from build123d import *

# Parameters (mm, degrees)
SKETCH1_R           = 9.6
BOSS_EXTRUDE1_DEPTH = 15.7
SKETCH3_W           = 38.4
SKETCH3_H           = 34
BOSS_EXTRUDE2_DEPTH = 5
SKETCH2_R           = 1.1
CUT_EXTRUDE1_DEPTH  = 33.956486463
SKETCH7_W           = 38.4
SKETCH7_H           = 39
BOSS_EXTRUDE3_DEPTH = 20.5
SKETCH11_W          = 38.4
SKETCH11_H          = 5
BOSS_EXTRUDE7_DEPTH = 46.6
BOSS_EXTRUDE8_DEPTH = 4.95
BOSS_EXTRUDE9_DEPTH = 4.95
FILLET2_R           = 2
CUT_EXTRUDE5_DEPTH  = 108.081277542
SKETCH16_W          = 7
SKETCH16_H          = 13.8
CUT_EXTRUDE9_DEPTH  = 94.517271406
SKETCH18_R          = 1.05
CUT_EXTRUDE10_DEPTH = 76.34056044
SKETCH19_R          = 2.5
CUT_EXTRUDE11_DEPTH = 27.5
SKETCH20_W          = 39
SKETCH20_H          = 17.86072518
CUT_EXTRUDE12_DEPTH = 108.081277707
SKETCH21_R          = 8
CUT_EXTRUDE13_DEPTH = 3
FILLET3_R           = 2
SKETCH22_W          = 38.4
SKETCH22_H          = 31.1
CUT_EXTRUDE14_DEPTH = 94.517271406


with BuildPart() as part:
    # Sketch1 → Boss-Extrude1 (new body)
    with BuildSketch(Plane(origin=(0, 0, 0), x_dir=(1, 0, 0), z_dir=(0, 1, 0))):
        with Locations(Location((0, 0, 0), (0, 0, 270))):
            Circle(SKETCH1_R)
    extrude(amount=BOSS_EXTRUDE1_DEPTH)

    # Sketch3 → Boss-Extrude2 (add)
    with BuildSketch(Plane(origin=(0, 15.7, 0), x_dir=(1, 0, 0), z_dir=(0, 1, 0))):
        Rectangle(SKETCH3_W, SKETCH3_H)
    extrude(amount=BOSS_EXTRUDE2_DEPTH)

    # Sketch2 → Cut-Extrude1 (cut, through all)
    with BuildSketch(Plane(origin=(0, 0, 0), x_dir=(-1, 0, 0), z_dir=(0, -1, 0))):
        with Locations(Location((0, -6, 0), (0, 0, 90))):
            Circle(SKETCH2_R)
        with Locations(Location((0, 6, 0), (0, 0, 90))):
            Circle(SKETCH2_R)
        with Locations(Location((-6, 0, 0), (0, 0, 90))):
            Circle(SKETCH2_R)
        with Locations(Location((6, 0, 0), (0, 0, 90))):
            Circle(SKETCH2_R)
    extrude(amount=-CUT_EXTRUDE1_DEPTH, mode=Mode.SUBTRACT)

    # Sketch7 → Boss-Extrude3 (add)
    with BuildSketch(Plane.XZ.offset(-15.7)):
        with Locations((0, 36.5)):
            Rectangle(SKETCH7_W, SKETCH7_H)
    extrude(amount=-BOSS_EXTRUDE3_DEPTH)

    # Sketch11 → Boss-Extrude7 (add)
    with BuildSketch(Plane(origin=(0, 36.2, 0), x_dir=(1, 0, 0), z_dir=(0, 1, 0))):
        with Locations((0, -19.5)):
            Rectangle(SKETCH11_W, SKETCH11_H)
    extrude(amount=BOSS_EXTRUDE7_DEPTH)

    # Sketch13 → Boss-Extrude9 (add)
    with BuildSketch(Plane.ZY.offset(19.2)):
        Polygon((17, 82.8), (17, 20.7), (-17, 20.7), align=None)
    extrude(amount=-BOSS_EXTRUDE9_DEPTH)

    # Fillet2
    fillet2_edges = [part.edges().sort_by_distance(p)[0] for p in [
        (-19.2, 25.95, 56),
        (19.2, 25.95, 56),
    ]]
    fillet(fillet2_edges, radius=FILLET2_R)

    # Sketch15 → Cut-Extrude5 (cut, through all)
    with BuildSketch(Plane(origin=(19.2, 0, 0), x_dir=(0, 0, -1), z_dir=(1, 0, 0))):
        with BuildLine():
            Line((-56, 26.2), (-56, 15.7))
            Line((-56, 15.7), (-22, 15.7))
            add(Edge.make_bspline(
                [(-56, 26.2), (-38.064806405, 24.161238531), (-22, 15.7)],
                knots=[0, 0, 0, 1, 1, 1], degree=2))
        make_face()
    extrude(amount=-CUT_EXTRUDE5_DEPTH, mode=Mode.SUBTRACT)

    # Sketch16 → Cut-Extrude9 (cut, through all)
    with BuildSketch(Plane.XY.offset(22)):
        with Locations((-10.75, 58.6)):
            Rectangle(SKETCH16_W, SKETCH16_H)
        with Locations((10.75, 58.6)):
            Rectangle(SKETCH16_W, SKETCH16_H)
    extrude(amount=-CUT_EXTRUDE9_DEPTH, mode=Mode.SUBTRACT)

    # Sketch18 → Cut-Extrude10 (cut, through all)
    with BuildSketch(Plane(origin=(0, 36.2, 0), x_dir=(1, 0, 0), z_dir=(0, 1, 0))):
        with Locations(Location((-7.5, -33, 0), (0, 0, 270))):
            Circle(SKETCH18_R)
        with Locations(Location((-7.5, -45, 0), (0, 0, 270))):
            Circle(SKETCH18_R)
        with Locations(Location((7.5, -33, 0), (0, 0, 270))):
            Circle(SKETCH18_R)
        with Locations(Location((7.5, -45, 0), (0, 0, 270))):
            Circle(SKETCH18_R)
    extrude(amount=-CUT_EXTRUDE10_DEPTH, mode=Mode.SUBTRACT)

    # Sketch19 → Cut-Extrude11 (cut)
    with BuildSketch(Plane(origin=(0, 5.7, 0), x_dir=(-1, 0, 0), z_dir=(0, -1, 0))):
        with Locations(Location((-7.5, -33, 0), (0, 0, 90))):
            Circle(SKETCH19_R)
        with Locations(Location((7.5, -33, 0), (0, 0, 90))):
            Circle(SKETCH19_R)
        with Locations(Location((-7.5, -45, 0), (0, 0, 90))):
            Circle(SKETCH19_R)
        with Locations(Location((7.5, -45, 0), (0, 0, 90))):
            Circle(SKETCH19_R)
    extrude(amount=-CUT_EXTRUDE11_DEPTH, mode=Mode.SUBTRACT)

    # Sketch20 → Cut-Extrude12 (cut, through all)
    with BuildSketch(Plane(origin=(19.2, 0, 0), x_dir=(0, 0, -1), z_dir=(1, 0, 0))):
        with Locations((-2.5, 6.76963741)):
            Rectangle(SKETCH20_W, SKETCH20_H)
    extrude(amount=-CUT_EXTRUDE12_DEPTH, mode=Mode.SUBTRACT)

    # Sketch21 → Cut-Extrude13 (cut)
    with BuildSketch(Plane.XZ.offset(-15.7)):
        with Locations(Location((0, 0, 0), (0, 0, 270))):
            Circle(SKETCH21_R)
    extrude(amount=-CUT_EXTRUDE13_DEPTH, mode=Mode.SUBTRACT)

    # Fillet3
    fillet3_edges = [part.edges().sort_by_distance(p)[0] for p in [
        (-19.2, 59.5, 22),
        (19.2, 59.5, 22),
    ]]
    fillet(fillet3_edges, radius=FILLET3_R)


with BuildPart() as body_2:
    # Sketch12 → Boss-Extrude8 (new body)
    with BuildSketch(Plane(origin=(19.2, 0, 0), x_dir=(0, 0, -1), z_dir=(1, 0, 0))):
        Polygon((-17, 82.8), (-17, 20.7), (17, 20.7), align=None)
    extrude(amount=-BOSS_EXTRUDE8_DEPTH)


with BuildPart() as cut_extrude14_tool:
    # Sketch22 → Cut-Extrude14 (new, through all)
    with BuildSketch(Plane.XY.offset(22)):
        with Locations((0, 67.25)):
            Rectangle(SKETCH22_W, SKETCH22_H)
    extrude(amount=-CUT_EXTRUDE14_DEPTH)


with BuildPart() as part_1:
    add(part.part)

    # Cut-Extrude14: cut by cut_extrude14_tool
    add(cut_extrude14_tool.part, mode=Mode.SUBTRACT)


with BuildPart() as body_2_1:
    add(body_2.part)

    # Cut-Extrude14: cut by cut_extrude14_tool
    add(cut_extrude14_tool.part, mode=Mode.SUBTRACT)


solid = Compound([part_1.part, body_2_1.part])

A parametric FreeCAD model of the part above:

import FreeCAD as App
import Part
import Sketcher
from FreeCAD import Vector
Q = App.Units.Quantity


def edges_at(feature, points):
    """Names of the edges that pass closest to the given points."""
    edges = feature.Shape.Edges
    near = lambda p: min(range(len(edges)), key=lambda i: edges[i].distToShape(Part.Vertex(*p))[0])
    return sorted({f"Edge{near(p) + 1}" for p in points})


def add_polygon(sketch, points):
    """Adds a closed chain of lines whose ends are joined by coincident constraints."""
    first, n = sketch.GeometryCount, len(points)
    for a, b in zip(points, points[1:] + points[:1]):
        sketch.addGeometry(Part.LineSegment(App.Vector(*a, 0), App.Vector(*b, 0)), False)
    for i in range(n):
        sketch.addConstraint(Sketcher.Constraint("Coincident", first + i, 2, first + (i + 1) % n, 1))

doc = App.newDocument("Part")
body = doc.addObject("PartDesign::Body", "Body")

sketch1 = body.newObject("Sketcher::SketchObject", "Sketch")
sketch1.AttachmentSupport = (doc.getObject("XZ_Plane"), [""])
sketch1.MapMode = "FlatFace"
sketch1.addGeometry(Part.Circle(Vector(0, 0, 0), Vector(0, 0, 1), 9.6), False)
sketch1.addConstraint([
    Sketcher.Constraint("Coincident", 0, 3, -1, 1),
    Sketcher.Constraint("Diameter", 0, Q("19.2 mm")),
])
pad1 = body.newObject("PartDesign::Pad", "Pad")
pad1.Profile = sketch1
pad1.Length = 15.7
pad1.Reversed = True

sketch2 = body.newObject("Sketcher::SketchObject", "Sketch001")
sketch2.AttachmentSupport = (doc.getObject("XZ_Plane"), [""])
sketch2.MapMode = "FlatFace"
sketch2.AttachmentOffset = App.Placement(Vector(0, 0, -15.7), App.Rotation())
add_polygon(sketch2, [(-19.2, -17), (-19.2, 17), (19.2, 17), (19.2, -17)])
sketch2.addConstraint([
    Sketcher.Constraint("Vertical", 0),
    Sketcher.Constraint("Horizontal", 1),
    Sketcher.Constraint("Vertical", 2),
    Sketcher.Constraint("Horizontal", 3),
    Sketcher.Constraint("Symmetric", 0, 2, 2, 2, -1, 1),
    Sketcher.Constraint("DistanceY", 0, 1, 0, 2, Q("34 mm")),
    Sketcher.Constraint("DistanceX", 1, 1, 1, 2, Q("38.4 mm")),
])
pad2 = body.newObject("PartDesign::Pad", "Pad001")
pad2.Profile = sketch2
pad2.Length = 5
pad2.Reversed = True

sketch3 = body.newObject("Sketcher::SketchObject", "Sketch002")
sketch3.AttachmentSupport = (doc.getObject("XZ_Plane"), [""])
sketch3.MapMode = "FlatFace"
sketch3.addGeometry([
    Part.Circle(Vector(0, 6, 0), Vector(0, 0, 1), 1.1),
    Part.Circle(Vector(0, -6, 0), Vector(0, 0, 1), 1.1),
    Part.Circle(Vector(6, 0, 0), Vector(0, 0, 1), 1.1),
    Part.Circle(Vector(-6, 0, 0), Vector(0, 0, 1), 1.1),
], False)
sketch3.addConstraint([
    Sketcher.Constraint("Equal", 0, 1),
    Sketcher.Constraint("Equal", 1, 2),
    Sketcher.Constraint("Equal", 2, 3),
    Sketcher.Constraint("Symmetric", 0, 3, 1, 3, -1, 1),
    Sketcher.Constraint("Symmetric", 2, 3, 3, 3, -1, 1),
    Sketcher.Constraint("PointOnObject", 0, 3, -2),
    Sketcher.Constraint("PointOnObject", 2, 3, -1),
    Sketcher.Constraint("Diameter", 0, Q("2.2 mm")),
    Sketcher.Constraint("DistanceY", -1, 1, 0, 3, Q("6 mm")),
    Sketcher.Constraint("DistanceX", -1, 1, 2, 3, Q("6 mm")),
])
pocket1 = body.newObject("PartDesign::Pocket", "Pocket")
pocket1.Profile = sketch3
pocket1.Type = "ThroughAll"

sketch4 = body.newObject("Sketcher::SketchObject", "Sketch003")
sketch4.AttachmentSupport = (doc.getObject("XZ_Plane"), [""])
sketch4.MapMode = "FlatFace"
sketch4.AttachmentOffset = App.Placement(Vector(0, 0, -15.7), App.Rotation())
add_polygon(sketch4, [(-19.2, 56), (-19.2, 17), (19.2, 17), (19.2, 56)])
sketch4.addConstraint([
    Sketcher.Constraint("Vertical", 0),
    Sketcher.Constraint("Horizontal", 1),
    Sketcher.Constraint("Vertical", 2),
    Sketcher.Constraint("Horizontal", 3),
    Sketcher.Constraint("DistanceY", 0, 2, 0, 1, Q("39 mm")),
    Sketcher.Constraint("DistanceX", 1, 1, 1, 2, Q("38.4 mm")),
    Sketcher.Constraint("DistanceY", -1, 1, 0, 2, Q("17 mm")),
    Sketcher.Constraint("DistanceX", 0, 2, -1, 1, Q("19.2 mm")),
])
pad3 = body.newObject("PartDesign::Pad", "Pad002")
pad3.Profile = sketch4
pad3.Length = 20.5
pad3.Reversed = True

sketch5 = body.newObject("Sketcher::SketchObject", "Sketch004")
sketch5.AttachmentSupport = (doc.getObject("XZ_Plane"), [""])
sketch5.MapMode = "FlatFace"
sketch5.AttachmentOffset = App.Placement(Vector(0, 0, -36.2), App.Rotation())
add_polygon(sketch5, [(-19.2, 17), (-19.2, 22), (19.2, 22), (19.2, 17)])
sketch5.addConstraint([
    Sketcher.Constraint("Vertical", 0),
    Sketcher.Constraint("Horizontal", 1),
    Sketcher.Constraint("Vertical", 2),
    Sketcher.Constraint("Horizontal", 3),
    Sketcher.Constraint("DistanceY", 0, 1, 0, 2, Q("5 mm")),
    Sketcher.Constraint("DistanceX", 1, 1, 1, 2, Q("38.4 mm")),
    Sketcher.Constraint("DistanceY", -1, 1, 0, 2, Q("22 mm")),
    Sketcher.Constraint("DistanceX", 0, 2, -1, 1, Q("19.2 mm")),
])
pad4 = body.newObject("PartDesign::Pad", "Pad003")
pad4.Profile = sketch5
pad4.Length = 46.6
pad4.Reversed = True

sketch6 = body.newObject("Sketcher::SketchObject", "Sketch005")
sketch6.AttachmentSupport = (doc.getObject("YZ_Plane"), [""])
sketch6.MapMode = "FlatFace"
sketch6.AttachmentOffset = App.Placement(Vector(0, 0, -19.2), App.Rotation())
add_polygon(sketch6, [(20.7, 17), (82.8, 17), (20.7, -17)])
sketch6.addConstraint([
    Sketcher.Constraint("Horizontal", 0),
    Sketcher.Constraint("Vertical", 2),
    Sketcher.Constraint("DistanceY", 2, 1, 2, 2, Q("34 mm")),
    Sketcher.Constraint("DistanceX", 0, 1, 0, 2, Q("62.1 mm")),
    Sketcher.Constraint("DistanceY", -1, 1, 0, 2, Q("17 mm")),
    Sketcher.Constraint("DistanceX", -1, 1, 0, 2, Q("82.8 mm")),
])
pad5 = body.newObject("PartDesign::Pad", "Pad004")
pad5.Profile = sketch6
pad5.Length = 4.95
doc.recompute()

fillet = body.newObject("PartDesign::Fillet", "Fillet")
fillet.Base = (pad5, edges_at(pad5, [(-19.2, 25.95, 56), (19.2, 25.95, 56)]))
fillet.Radius = 2

sketch7 = body.newObject("Sketcher::SketchObject", "Sketch006")
sketch7.AttachmentSupport = (doc.getObject("YZ_Plane"), [""])
sketch7.MapMode = "FlatFace"
sketch7.AttachmentOffset = App.Placement(Vector(0, 0, 19.2), App.Rotation())
sketch7.addGeometry([
    Part.LineSegment(Vector(26.2, 56, 0), Vector(15.7, 56, 0)),
    Part.LineSegment(Vector(15.7, 56, 0), Vector(15.7, 22, 0)),
    Part.BSplineCurve([Vector(26.2, 56, 0), Vector(24.161239, 38.064806, 0), Vector(15.7, 22, 0)], [3, 3], [0, 1], False, 2, [1, 1, 1], False),
], False)
sketch7.addConstraint([
    Sketcher.Constraint("Block", 2),
    Sketcher.Constraint("Coincident", 0, 2, 1, 1),
    Sketcher.Constraint("Coincident", 1, 2, 2, 2),
    Sketcher.Constraint("Coincident", 2, 1, 0, 1),
    Sketcher.Constraint("Horizontal", 0),
    Sketcher.Constraint("Vertical", 1),
])
pocket2 = body.newObject("PartDesign::Pocket", "Pocket001")
pocket2.Profile = sketch7
pocket2.Type = "ThroughAll"

sketch8 = body.newObject("Sketcher::SketchObject", "Sketch007")
sketch8.AttachmentSupport = (doc.getObject("XY_Plane"), [""])
sketch8.MapMode = "FlatFace"
sketch8.AttachmentOffset = App.Placement(Vector(0, 0, 22), App.Rotation())
add_polygon(sketch8, [(-14.25, 65.5), (-14.25, 51.7), (-7.25, 51.7), (-7.25, 65.5)])
add_polygon(sketch8, [(7.25, 65.5), (7.25, 51.7), (14.25, 51.7), (14.25, 65.5)])
sketch8.addConstraint([
    Sketcher.Constraint("Vertical", 0),
    Sketcher.Constraint("Horizontal", 1),
    Sketcher.Constraint("Vertical", 2),
    Sketcher.Constraint("Horizontal", 3),
    Sketcher.Constraint("Vertical", 4),
    Sketcher.Constraint("Horizontal", 5),
    Sketcher.Constraint("Vertical", 6),
    Sketcher.Constraint("Horizontal", 7),
    Sketcher.Constraint("Symmetric", 1, 2, 4, 2, -2),
    Sketcher.Constraint("Symmetric", 3, 2, 6, 2, -2),
    Sketcher.Constraint("DistanceX", 1, 1, 1, 2, Q("7 mm")),
    Sketcher.Constraint("DistanceY", 0, 2, 0, 1, Q("13.8 mm")),
    Sketcher.Constraint("DistanceY", -1, 1, 0, 2, Q("51.7 mm")),
    Sketcher.Constraint("DistanceX", 1, 2, 4, 2, Q("14.5 mm")),
])
pocket3 = body.newObject("PartDesign::Pocket", "Pocket002")
pocket3.Profile = sketch8
pocket3.Type = "ThroughAll"

sketch9 = body.newObject("Sketcher::SketchObject", "Sketch008")
sketch9.AttachmentSupport = (doc.getObject("XZ_Plane"), [""])
sketch9.MapMode = "FlatFace"
sketch9.AttachmentOffset = App.Placement(Vector(0, 0, -36.2), App.Rotation())
sketch9.addGeometry([
    Part.Circle(Vector(-7.5, 33, 0), Vector(0, 0, 1), 1.05),
    Part.Circle(Vector(-7.5, 45, 0), Vector(0, 0, 1), 1.05),
    Part.Circle(Vector(7.5, 33, 0), Vector(0, 0, 1), 1.05),
    Part.Circle(Vector(7.5, 45, 0), Vector(0, 0, 1), 1.05),
], False)
sketch9.addConstraint([
    Sketcher.Constraint("Equal", 0, 1),
    Sketcher.Constraint("Equal", 1, 2),
    Sketcher.Constraint("Equal", 2, 3),
    Sketcher.Constraint("Symmetric", 0, 3, 2, 3, -2),
    Sketcher.Constraint("Symmetric", 1, 3, 3, 3, -2),
    Sketcher.Constraint("Vertical", 0, 3, 1, 3),
    Sketcher.Constraint("Diameter", 0, Q("2.1 mm")),
    Sketcher.Constraint("DistanceY", -1, 1, 0, 3, Q("33 mm")),
    Sketcher.Constraint("DistanceY", -1, 1, 1, 3, Q("45 mm")),
    Sketcher.Constraint("DistanceX", 0, 3, 2, 3, Q("15 mm")),
])
pocket4 = body.newObject("PartDesign::Pocket", "Pocket003")
pocket4.Profile = sketch9
pocket4.Type = "ThroughAll"
pocket4.Reversed = True

sketch10 = body.newObject("Sketcher::SketchObject", "Sketch009")
sketch10.AttachmentSupport = (doc.getObject("XZ_Plane"), [""])
sketch10.MapMode = "FlatFace"
sketch10.AttachmentOffset = App.Placement(Vector(0, 0, -5.7), App.Rotation())
sketch10.addGeometry([
    Part.Circle(Vector(7.5, 33, 0), Vector(0, 0, 1), 2.5),
    Part.Circle(Vector(-7.5, 33, 0), Vector(0, 0, 1), 2.5),
    Part.Circle(Vector(7.5, 45, 0), Vector(0, 0, 1), 2.5),
    Part.Circle(Vector(-7.5, 45, 0), Vector(0, 0, 1), 2.5),
], False)
sketch10.addConstraint([
    Sketcher.Constraint("Equal", 0, 1),
    Sketcher.Constraint("Equal", 1, 2),
    Sketcher.Constraint("Equal", 2, 3),
    Sketcher.Constraint("Symmetric", 0, 3, 1, 3, -2),
    Sketcher.Constraint("Symmetric", 2, 3, 3, 3, -2),
    Sketcher.Constraint("Vertical", 0, 3, 2, 3),
    Sketcher.Constraint("Diameter", 0, Q("5 mm")),
    Sketcher.Constraint("DistanceY", -1, 1, 0, 3, Q("33 mm")),
    Sketcher.Constraint("DistanceY", -1, 1, 2, 3, Q("45 mm")),
    Sketcher.Constraint("DistanceX", 1, 3, 0, 3, Q("15 mm")),
])
pocket5 = body.newObject("PartDesign::Pocket", "Pocket004")
pocket5.Profile = sketch10
pocket5.Length = 27.5

sketch11 = body.newObject("Sketcher::SketchObject", "Sketch010")
sketch11.AttachmentSupport = (doc.getObject("YZ_Plane"), [""])
sketch11.MapMode = "FlatFace"
sketch11.AttachmentOffset = App.Placement(Vector(0, 0, 19.2), App.Rotation())
add_polygon(sketch11, [(15.7, 22), (-2.160725, 22), (-2.160725, -17), (15.7, -17)])
sketch11.addConstraint([
    Sketcher.Constraint("Horizontal", 0),
    Sketcher.Constraint("Vertical", 1),
    Sketcher.Constraint("Horizontal", 2),
    Sketcher.Constraint("Vertical", 3),
    Sketcher.Constraint("DistanceY", 1, 2, 1, 1, Q("39 mm")),
    Sketcher.Constraint("DistanceY", -1, 1, 0, 2, Q("22 mm")),
    Sketcher.Constraint("DistanceX", -1, 1, 2, 2, Q("15.7 mm")),
    Sketcher.Constraint("DistanceX", 0, 2, 0, 1, Q("17.860725 mm")),
])
pocket6 = body.newObject("PartDesign::Pocket", "Pocket005")
pocket6.Profile = sketch11
pocket6.Type = "ThroughAll"

sketch12 = body.newObject("Sketcher::SketchObject", "Sketch011")
sketch12.AttachmentSupport = (doc.getObject("XZ_Plane"), [""])
sketch12.MapMode = "FlatFace"
sketch12.AttachmentOffset = App.Placement(Vector(0, 0, -15.7), App.Rotation())
sketch12.addGeometry(Part.Circle(Vector(0, 0, 0), Vector(0, 0, 1), 8), False)
sketch12.addConstraint([
    Sketcher.Constraint("Coincident", 0, 3, -1, 1),
    Sketcher.Constraint("Diameter", 0, Q("16 mm")),
])
pocket7 = body.newObject("PartDesign::Pocket", "Pocket006")
pocket7.Profile = sketch12
pocket7.Length = 3
doc.recompute()

fillet2 = body.newObject("PartDesign::Fillet", "Fillet001")
fillet2.Base = (pocket7, edges_at(pocket7, [(-19.2, 59.5, 22), (19.2, 59.5, 22)]))
fillet2.Radius = 2
body2 = doc.addObject("PartDesign::Body", "Body001")

sketch13 = body2.newObject("Sketcher::SketchObject", "Sketch012")
sketch13.AttachmentSupport = (doc.getObject("YZ_Plane001"), [""])
sketch13.MapMode = "FlatFace"
sketch13.AttachmentOffset = App.Placement(Vector(0, 0, 19.2), App.Rotation())
add_polygon(sketch13, [(82.8, 17), (20.7, 17), (20.7, -17)])
sketch13.addConstraint([
    Sketcher.Constraint("Horizontal", 0),
    Sketcher.Constraint("Vertical", 1),
    Sketcher.Constraint("DistanceY", 1, 2, 1, 1, Q("34 mm")),
    Sketcher.Constraint("DistanceX", 0, 2, 0, 1, Q("62.1 mm")),
    Sketcher.Constraint("DistanceY", -1, 1, 0, 2, Q("17 mm")),
    Sketcher.Constraint("DistanceX", -1, 1, 0, 2, Q("20.7 mm")),
])
pad6 = body2.newObject("PartDesign::Pad", "Pad005")
pad6.Profile = sketch13
pad6.Length = 4.95
pad6.Reversed = True
body3 = doc.addObject("PartDesign::Body", "Body002")

sketch14 = body3.newObject("Sketcher::SketchObject", "Sketch013")
sketch14.AttachmentSupport = (doc.getObject("XY_Plane002"), [""])
sketch14.MapMode = "FlatFace"
sketch14.AttachmentOffset = App.Placement(Vector(0, 0, 22), App.Rotation())
add_polygon(sketch14, [(-19.2, 82.8), (-19.2, 51.7), (19.2, 51.7), (19.2, 82.8)])
sketch14.addConstraint([
    Sketcher.Constraint("Vertical", 0),
    Sketcher.Constraint("Horizontal", 1),
    Sketcher.Constraint("Vertical", 2),
    Sketcher.Constraint("Horizontal", 3),
    Sketcher.Constraint("DistanceX", 1, 1, 1, 2, Q("38.4 mm")),
    Sketcher.Constraint("DistanceY", 0, 2, 0, 1, Q("31.1 mm")),
    Sketcher.Constraint("DistanceX", 0, 2, -1, 1, Q("19.2 mm")),
    Sketcher.Constraint("DistanceY", -1, 1, 0, 2, Q("51.7 mm")),
])
pad7 = body3.newObject("PartDesign::Pad", "Pad006")
pad7.Profile = sketch14
pad7.Length = 94.517271
pad7.Reversed = True
doc.recompute()

body4 = doc.addObject("PartDesign::Body", "Body003")
body4.BaseFeature = body3
boolean = body.newObject("PartDesign::Boolean", "Boolean")
boolean.Type = "Cut"
boolean.addObjects([body4])
doc.recompute()

boolean2 = body2.newObject("PartDesign::Boolean", "Boolean001")
boolean2.Type = "Cut"
boolean2.addObjects([body3])

doc.recompute()
